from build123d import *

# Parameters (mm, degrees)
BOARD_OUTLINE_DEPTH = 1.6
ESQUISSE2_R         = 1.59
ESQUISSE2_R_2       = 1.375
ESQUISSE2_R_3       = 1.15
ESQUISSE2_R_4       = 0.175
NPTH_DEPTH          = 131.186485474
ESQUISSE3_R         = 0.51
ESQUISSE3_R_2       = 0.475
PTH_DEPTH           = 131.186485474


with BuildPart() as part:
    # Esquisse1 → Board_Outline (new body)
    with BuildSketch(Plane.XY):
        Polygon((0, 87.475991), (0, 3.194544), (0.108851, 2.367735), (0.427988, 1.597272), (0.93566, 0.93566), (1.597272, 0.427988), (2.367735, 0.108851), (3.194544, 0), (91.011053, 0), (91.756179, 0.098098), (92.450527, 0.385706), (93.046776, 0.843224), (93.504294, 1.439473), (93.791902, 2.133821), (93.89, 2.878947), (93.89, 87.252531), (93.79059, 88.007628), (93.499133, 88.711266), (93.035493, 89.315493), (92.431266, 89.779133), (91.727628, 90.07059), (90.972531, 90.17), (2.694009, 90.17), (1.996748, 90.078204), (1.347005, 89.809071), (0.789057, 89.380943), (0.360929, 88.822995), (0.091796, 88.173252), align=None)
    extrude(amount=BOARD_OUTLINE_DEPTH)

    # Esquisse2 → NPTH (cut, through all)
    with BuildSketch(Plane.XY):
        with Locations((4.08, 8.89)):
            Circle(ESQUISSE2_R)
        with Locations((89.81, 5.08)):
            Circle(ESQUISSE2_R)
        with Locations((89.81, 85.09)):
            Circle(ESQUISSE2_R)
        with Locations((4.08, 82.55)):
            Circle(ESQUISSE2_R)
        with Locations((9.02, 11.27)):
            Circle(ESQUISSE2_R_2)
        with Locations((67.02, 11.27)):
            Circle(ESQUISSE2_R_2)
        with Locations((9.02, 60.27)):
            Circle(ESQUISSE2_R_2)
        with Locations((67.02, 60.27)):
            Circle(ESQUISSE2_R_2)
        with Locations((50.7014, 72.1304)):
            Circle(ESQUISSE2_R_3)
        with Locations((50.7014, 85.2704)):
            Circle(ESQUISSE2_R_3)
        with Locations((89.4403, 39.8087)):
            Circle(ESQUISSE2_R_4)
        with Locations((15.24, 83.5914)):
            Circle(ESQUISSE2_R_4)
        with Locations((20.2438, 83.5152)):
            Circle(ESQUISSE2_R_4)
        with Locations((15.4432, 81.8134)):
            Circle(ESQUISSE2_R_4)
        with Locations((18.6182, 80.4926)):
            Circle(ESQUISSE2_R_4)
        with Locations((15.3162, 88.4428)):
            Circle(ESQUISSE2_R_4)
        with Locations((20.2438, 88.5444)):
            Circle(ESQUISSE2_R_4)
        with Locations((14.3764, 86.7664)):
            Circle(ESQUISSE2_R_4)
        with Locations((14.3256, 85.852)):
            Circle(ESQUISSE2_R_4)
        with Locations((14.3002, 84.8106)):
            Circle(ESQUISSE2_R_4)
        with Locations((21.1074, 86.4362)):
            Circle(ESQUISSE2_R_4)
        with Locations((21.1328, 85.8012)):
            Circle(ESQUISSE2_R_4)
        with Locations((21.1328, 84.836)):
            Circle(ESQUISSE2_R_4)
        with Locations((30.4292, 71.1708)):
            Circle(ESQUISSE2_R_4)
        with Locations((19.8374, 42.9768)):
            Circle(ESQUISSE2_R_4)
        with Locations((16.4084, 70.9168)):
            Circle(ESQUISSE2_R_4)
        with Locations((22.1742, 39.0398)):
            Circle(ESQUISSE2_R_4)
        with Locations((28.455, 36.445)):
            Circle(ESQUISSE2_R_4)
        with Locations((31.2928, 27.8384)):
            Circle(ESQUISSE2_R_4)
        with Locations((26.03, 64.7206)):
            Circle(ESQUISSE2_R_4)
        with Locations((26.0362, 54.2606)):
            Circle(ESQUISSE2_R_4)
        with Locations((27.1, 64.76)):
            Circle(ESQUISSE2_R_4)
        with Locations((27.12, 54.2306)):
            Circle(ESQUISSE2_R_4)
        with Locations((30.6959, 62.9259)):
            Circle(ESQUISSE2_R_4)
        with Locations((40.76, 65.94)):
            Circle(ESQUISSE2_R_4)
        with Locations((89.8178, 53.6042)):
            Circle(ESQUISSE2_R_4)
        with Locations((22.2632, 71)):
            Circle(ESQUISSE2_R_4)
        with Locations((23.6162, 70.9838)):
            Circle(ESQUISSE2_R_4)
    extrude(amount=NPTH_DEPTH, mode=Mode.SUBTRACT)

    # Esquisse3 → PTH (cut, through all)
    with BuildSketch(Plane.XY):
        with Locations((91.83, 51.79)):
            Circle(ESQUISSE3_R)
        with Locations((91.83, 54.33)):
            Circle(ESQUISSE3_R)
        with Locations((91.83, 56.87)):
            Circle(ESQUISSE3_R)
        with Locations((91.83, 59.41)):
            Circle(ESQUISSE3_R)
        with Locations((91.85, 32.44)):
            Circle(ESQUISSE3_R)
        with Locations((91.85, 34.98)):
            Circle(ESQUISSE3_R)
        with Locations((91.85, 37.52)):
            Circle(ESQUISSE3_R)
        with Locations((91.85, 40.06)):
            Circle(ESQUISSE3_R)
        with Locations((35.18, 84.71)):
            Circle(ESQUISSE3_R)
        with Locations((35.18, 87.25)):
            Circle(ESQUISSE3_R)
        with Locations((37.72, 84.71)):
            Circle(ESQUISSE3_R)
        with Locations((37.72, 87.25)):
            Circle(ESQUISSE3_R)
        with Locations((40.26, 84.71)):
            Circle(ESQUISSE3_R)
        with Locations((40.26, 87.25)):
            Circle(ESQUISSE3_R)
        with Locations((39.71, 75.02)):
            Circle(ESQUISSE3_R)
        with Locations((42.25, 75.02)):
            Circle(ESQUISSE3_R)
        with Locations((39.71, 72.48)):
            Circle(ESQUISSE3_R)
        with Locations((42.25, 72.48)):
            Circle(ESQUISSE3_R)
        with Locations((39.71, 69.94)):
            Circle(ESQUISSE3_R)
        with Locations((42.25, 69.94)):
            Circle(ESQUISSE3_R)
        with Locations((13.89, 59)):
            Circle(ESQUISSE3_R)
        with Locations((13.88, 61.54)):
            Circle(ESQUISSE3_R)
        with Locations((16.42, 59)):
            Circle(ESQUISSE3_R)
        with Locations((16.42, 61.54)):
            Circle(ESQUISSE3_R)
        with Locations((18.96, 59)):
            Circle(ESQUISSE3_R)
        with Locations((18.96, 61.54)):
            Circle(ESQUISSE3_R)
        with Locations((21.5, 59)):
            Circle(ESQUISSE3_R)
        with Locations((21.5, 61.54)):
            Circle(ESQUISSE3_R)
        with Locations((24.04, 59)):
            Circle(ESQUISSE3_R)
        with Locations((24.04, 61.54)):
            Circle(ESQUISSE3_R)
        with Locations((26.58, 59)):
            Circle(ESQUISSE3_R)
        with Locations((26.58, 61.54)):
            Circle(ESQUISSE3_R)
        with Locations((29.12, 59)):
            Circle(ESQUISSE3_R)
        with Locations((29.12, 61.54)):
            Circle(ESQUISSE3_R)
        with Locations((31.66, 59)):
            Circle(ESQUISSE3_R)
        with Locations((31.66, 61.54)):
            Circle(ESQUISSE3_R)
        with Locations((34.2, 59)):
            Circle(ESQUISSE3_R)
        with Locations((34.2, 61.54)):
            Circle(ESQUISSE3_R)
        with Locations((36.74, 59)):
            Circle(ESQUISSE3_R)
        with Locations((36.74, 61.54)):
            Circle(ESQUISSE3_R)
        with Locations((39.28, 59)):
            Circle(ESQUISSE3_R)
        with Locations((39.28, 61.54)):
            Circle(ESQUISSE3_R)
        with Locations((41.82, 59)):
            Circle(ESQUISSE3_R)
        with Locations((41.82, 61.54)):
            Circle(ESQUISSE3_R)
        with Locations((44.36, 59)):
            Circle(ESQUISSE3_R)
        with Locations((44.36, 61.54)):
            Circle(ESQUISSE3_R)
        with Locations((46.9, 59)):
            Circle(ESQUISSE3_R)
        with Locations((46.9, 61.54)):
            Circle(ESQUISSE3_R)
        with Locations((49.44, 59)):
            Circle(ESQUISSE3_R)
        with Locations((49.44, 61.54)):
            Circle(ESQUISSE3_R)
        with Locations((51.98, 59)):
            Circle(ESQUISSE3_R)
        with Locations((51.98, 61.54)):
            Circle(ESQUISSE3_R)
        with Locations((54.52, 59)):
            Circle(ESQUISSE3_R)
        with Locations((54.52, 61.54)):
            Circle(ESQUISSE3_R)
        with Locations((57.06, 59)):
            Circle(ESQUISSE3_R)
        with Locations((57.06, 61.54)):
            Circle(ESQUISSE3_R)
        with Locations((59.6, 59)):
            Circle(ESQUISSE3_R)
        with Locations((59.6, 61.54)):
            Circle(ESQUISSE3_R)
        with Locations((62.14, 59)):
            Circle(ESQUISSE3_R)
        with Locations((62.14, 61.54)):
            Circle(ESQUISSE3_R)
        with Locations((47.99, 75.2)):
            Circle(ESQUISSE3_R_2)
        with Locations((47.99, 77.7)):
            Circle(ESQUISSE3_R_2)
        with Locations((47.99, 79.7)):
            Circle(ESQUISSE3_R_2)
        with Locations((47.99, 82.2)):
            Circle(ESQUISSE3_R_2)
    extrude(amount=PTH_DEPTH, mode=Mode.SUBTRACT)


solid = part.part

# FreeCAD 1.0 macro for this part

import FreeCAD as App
import Part
import Sketcher

V = App.Vector

doc = App.newDocument("Part")
body = doc.addObject("PartDesign::Body", "Body")

sketch1 = body.newObject("Sketcher::SketchObject", "Sketch")
sketch1.AttachmentSupport = (doc.getObject("XY_Plane"), [""])
sketch1.MapMode = "FlatFace"
sketch1.addGeometry(Part.LineSegment(V(0, 87.475991, 0), V(0, 3.194544, 0)), False)
sketch1.addGeometry(Part.LineSegment(V(0, 3.194544, 0), V(0.108851, 2.367735, 0)), False)
sketch1.addGeometry(Part.LineSegment(V(0.108851, 2.367735, 0), V(0.427988, 1.597272, 0)), False)
sketch1.addGeometry(Part.LineSegment(V(0.427988, 1.597272, 0), V(0.93566, 0.93566, 0)), False)
sketch1.addGeometry(Part.LineSegment(V(0.93566, 0.93566, 0), V(1.597272, 0.427988, 0)), False)
sketch1.addGeometry(Part.LineSegment(V(1.597272, 0.427988, 0), V(2.367735, 0.108851, 0)), False)
sketch1.addGeometry(Part.LineSegment(V(2.367735, 0.108851, 0), V(3.194544, 0, 0)), False)
sketch1.addGeometry(Part.LineSegment(V(3.194544, 0, 0), V(91.011053, 0, 0)), False)
sketch1.addGeometry(Part.LineSegment(V(91.011053, 0, 0), V(91.756179, 0.098098, 0)), False)
sketch1.addGeometry(Part.LineSegment(V(91.756179, 0.098098, 0), V(92.450527, 0.385706, 0)), False)
sketch1.addGeometry(Part.LineSegment(V(92.450527, 0.385706, 0), V(93.046776, 0.843224, 0)), False)
sketch1.addGeometry(Part.LineSegment(V(93.046776, 0.843224, 0), V(93.504294, 1.439473, 0)), False)
sketch1.addGeometry(Part.LineSegment(V(93.504294, 1.439473, 0), V(93.791902, 2.133821, 0)), False)
sketch1.addGeometry(Part.LineSegment(V(93.791902, 2.133821, 0), V(93.89, 2.878947, 0)), False)
sketch1.addGeometry(Part.LineSegment(V(93.89, 2.878947, 0), V(93.89, 87.252531, 0)), False)
sketch1.addGeometry(Part.LineSegment(V(93.89, 87.252531, 0), V(93.79059, 88.007628, 0)), False)
sketch1.addGeometry(Part.LineSegment(V(93.79059, 88.007628, 0), V(93.499133, 88.711266, 0)), False)
sketch1.addGeometry(Part.LineSegment(V(93.499133, 88.711266, 0), V(93.035493, 89.315493, 0)), False)
sketch1.addGeometry(Part.LineSegment(V(93.035493, 89.315493, 0), V(92.431266, 89.779133, 0)), False)
sketch1.addGeometry(Part.LineSegment(V(92.431266, 89.779133, 0), V(91.727628, 90.07059, 0)), False)
sketch1.addGeometry(Part.LineSegment(V(91.727628, 90.07059, 0), V(90.972531, 90.17, 0)), False)
sketch1.addGeometry(Part.LineSegment(V(90.972531, 90.17, 0), V(2.694009, 90.17, 0)), False)
sketch1.addGeometry(Part.LineSegment(V(2.694009, 90.17, 0), V(1.996748, 90.078204, 0)), False)
sketch1.addGeometry(Part.LineSegment(V(1.996748, 90.078204, 0), V(1.347005, 89.809071, 0)), False)
sketch1.addGeometry(Part.LineSegment(V(1.347005, 89.809071, 0), V(0.789057, 89.380943, 0)), False)
sketch1.addGeometry(Part.LineSegment(V(0.789057, 89.380943, 0), V(0.360929, 88.822995, 0)), False)
sketch1.addGeometry(Part.LineSegment(V(0.360929, 88.822995, 0), V(0.091796, 88.173252, 0)), False)
sketch1.addGeometry(Part.LineSegment(V(0.091796, 88.173252, 0), V(0, 87.475991, 0)), False)
sketch1.addConstraint(Sketcher.Constraint("Coincident", 0, 2, 1, 1))
sketch1.addConstraint(Sketcher.Constraint("Coincident", 1, 2, 2, 1))
sketch1.addConstraint(Sketcher.Constraint("Coincident", 2, 2, 3, 1))
sketch1.addConstraint(Sketcher.Constraint("Coincident", 3, 2, 4, 1))
sketch1.addConstraint(Sketcher.Constraint("Coincident", 4, 2, 5, 1))
sketch1.addConstraint(Sketcher.Constraint("Coincident", 5, 2, 6, 1))
sketch1.addConstraint(Sketcher.Constraint("Coincident", 6, 2, 7, 1))
sketch1.addConstraint(Sketcher.Constraint("Coincident", 7, 2, 8, 1))
sketch1.addConstraint(Sketcher.Constraint("Coincident", 8, 2, 9, 1))
sketch1.addConstraint(Sketcher.Constraint("Coincident", 9, 2, 10, 1))
sketch1.addConstraint(Sketcher.Constraint("Coincident", 10, 2, 11, 1))
sketch1.addConstraint(Sketcher.Constraint("Coincident", 11, 2, 12, 1))
sketch1.addConstraint(Sketcher.Constraint("Coincident", 12, 2, 13, 1))
sketch1.addConstraint(Sketcher.Constraint("Coincident", 13, 2, 14, 1))
sketch1.addConstraint(Sketcher.Constraint("Coincident", 14, 2, 15, 1))
sketch1.addConstraint(Sketcher.Constraint("Coincident", 15, 2, 16, 1))
sketch1.addConstraint(Sketcher.Constraint("Coincident", 16, 2, 17, 1))
sketch1.addConstraint(Sketcher.Constraint("Coincident", 17, 2, 18, 1))
sketch1.addConstraint(Sketcher.Constraint("Coincident", 18, 2, 19, 1))
sketch1.addConstraint(Sketcher.Constraint("Coincident", 19, 2, 20, 1))
sketch1.addConstraint(Sketcher.Constraint("Coincident", 20, 2, 21, 1))
sketch1.addConstraint(Sketcher.Constraint("Coincident", 21, 2, 22, 1))
sketch1.addConstraint(Sketcher.Constraint("Coincident", 22, 2, 23, 1))
sketch1.addConstraint(Sketcher.Constraint("Coincident", 23, 2, 24, 1))
sketch1.addConstraint(Sketcher.Constraint("Coincident", 24, 2, 25, 1))
sketch1.addConstraint(Sketcher.Constraint("Coincident", 25, 2, 26, 1))
sketch1.addConstraint(Sketcher.Constraint("Coincident", 26, 2, 27, 1))
sketch1.addConstraint(Sketcher.Constraint("Coincident", 27, 2, 0, 1))
sketch1.addConstraint(Sketcher.Constraint("Vertical", 0))
sketch1.addConstraint(Sketcher.Constraint("Horizontal", 7))
sketch1.addConstraint(Sketcher.Constraint("Vertical", 14))
sketch1.addConstraint(Sketcher.Constraint("Horizontal", 21))
sketch1.addConstraint(Sketcher.Constraint("PointOnObject", 0, 2, -2))
sketch1.addConstraint(Sketcher.Constraint("PointOnObject", 6, 2, -1))
sketch1.addConstraint(Sketcher.Constraint("DistanceX", -1, 1, 13, 2, 93.89))
sketch1.addConstraint(Sketcher.Constraint("DistanceY", -1, 1, 20, 2, 90.17))
sketch1.addConstraint(Sketcher.Constraint("DistanceX", 7, 1, 7, 2, 87.816509))
sketch1.addConstraint(Sketcher.Constraint("DistanceX", -1, 1, 12, 2, 93.791902))
sketch1.addConstraint(Sketcher.Constraint("DistanceY", 14, 2, 18, 2, 2.526602))
sketch1.addConstraint(Sketcher.Constraint("DistanceX", 20, 2, 16, 2, 2.526602))
sketch1.addConstraint(Sketcher.Constraint("DistanceY", 2, 2, 23, 2, 88.211799))
sketch1.addConstraint(Sketcher.Constraint("DistanceY", 0, 2, 24, 2, 86.186399))
sketch1.addConstraint(Sketcher.Constraint("Distance", 17, 0.761612))
sketch1.addConstraint(Sketcher.Constraint("Distance", 18, 0.761612))
sketch1.addConstraint(Sketcher.Constraint("DistanceX", 21, 2, 21, 1, 88.278522))
sketch1.addConstraint(Sketcher.Constraint("DistanceY", 0, 2, 0, 1, 84.281447))
sketch1.addConstraint(Sketcher.Constraint("DistanceY", 14, 1, 14, 2, 84.373584))
sketch1.addConstraint(Sketcher.Constraint("DistanceX", -1, 1, 1, 2, 0.108851))
sketch1.addConstraint(Sketcher.Constraint("DistanceX", -1, 1, 3, 2, 0.93566))
sketch1.addConstraint(Sketcher.Constraint("DistanceY", -1, 1, 3, 2, 0.93566))
sketch1.addConstraint(Sketcher.Constraint("DistanceY", -1, 1, 5, 2, 0.108851))
sketch1.addConstraint(Sketcher.Constraint("DistanceX", -1, 1, 8, 2, 91.756179))
sketch1.addConstraint(Sketcher.Constraint("DistanceY", -1, 1, 12, 2, 2.133821))
sketch1.addConstraint(Sketcher.Constraint("DistanceY", -1, 1, 14, 2, 87.252531))
sketch1.addConstraint(Sketcher.Constraint("DistanceX", -1, 1, 15, 2, 93.79059))
sketch1.addConstraint(Sketcher.Constraint("DistanceY", -1, 1, 19, 2, 90.07059))
sketch1.addConstraint(Sketcher.Constraint("DistanceX", -1, 1, 20, 2, 90.972531))
sketch1.addConstraint(Sketcher.Constraint("DistanceY", -1, 1, 23, 2, 89.809071))
sketch1.addConstraint(Sketcher.Constraint("DistanceX", -1, 1, 25, 2, 0.360929))
sketch1.addConstraint(Sketcher.Constraint("DistanceY", -1, 1, 27, 2, 87.475991))
sketch1.addConstraint(Sketcher.Constraint("DistanceY", 1, 2, 0, 2, 0.826809))
sketch1.addConstraint(Sketcher.Constraint("DistanceX", 3, 2, 4, 2, 0.661612))
sketch1.addConstraint(Sketcher.Constraint("DistanceX", 5, 2, 6, 2, 0.826809))
sketch1.addConstraint(Sketcher.Constraint("DistanceX", 4, 2, 7, 2, 89.413781))
sketch1.addConstraint(Sketcher.Constraint("DistanceY", 8, 2, 4, 2, 0.32989))
sketch1.addConstraint(Sketcher.Constraint("DistanceX", 5, 2, 9, 2, 90.082792))
sketch1.addConstraint(Sketcher.Constraint("DistanceY", 9, 2, 4, 2, 0.042282))
sketch1.addConstraint(Sketcher.Constraint("DistanceX", 9, 2, 10, 2, 0.596249))
sketch1.addConstraint(Sketcher.Constraint("DistanceX", 10, 2, 11, 2, 0.457518))
sketch1.addConstraint(Sketcher.Constraint("DistanceY", 10, 2, 11, 2, 0.596249))
sketch1.addConstraint(Sketcher.Constraint("DistanceY", 11, 2, 12, 2, 0.694348))
sketch1.addConstraint(Sketcher.Constraint("DistanceY", 9, 2, 13, 2, 2.493241))
sketch1.addConstraint(Sketcher.Constraint("DistanceY", 13, 2, 15, 2, 85.128681))
sketch1.addConstraint(Sketcher.Constraint("DistanceY", 13, 2, 16, 2, 85.832319))
sketch1.addConstraint(Sketcher.Constraint("DistanceX", 17, 2, 16, 2, 0.46364))
sketch1.addConstraint(Sketcher.Constraint("DistanceX", 19, 2, 15, 2, 2.062962))
sketch1.addConstraint(Sketcher.Constraint("DistanceX", 2, 2, 21, 2, 2.266021))
sketch1.addConstraint(Sketcher.Constraint("DistanceX", 22, 2, 21, 2, 0.697261))
sketch1.addConstraint(Sketcher.Constraint("DistanceY", 0, 2, 22, 2, 86.88366))
sketch1.addConstraint(Sketcher.Constraint("DistanceX", 24, 2, 23, 2, 0.557948))
sketch1.addConstraint(Sketcher.Constraint("DistanceX", 24, 2, 22, 2, 1.207691))
sketch1.addConstraint(Sketcher.Constraint("DistanceY", 25, 2, 22, 2, 1.255209))
sketch1.addConstraint(Sketcher.Constraint("DistanceX", 26, 2, 24, 2, 0.697261))
sketch1.addConstraint(Sketcher.Constraint("DistanceY", 26, 2, 24, 2, 1.207691))
pad1 = body.newObject("PartDesign::Pad", "Pad")
pad1.Profile = sketch1
pad1.Length = 1.6

sketch2 = body.newObject("Sketcher::SketchObject", "Sketch001")
sketch2.AttachmentSupport = (doc.getObject("XY_Plane"), [""])
sketch2.MapMode = "FlatFace"
sketch2.addGeometry(Part.Circle(V(4.08, 8.89, 0), V(0, 0, 1), 1.59), False)
sketch2.addGeometry(Part.Circle(V(89.81, 5.08, 0), V(0, 0, 1), 1.59), False)
sketch2.addGeometry(Part.Circle(V(89.81, 85.09, 0), V(0, 0, 1), 1.59), False)
sketch2.addGeometry(Part.Circle(V(4.08, 82.55, 0), V(0, 0, 1), 1.59), False)
sketch2.addGeometry(Part.Circle(V(9.02, 11.27, 0), V(0, 0, 1), 1.38), False)
sketch2.addGeometry(Part.Circle(V(67.02, 11.27, 0), V(0, 0, 1), 1.38), False)
sketch2.addGeometry(Part.Circle(V(9.02, 60.27, 0), V(0, 0, 1), 1.38), False)
sketch2.addGeometry(Part.Circle(V(67.02, 60.27, 0), V(0, 0, 1), 1.38), False)
sketch2.addGeometry(Part.Circle(V(50.7, 72.13, 0), V(0, 0, 1), 1.15), False)
sketch2.addGeometry(Part.Circle(V(50.7, 85.27, 0), V(0, 0, 1), 1.15), False)
sketch2.addGeometry(Part.Circle(V(89.44, 39.81, 0), V(0, 0, 1), 0.17), False)
sketch2.addGeometry(Part.Circle(V(15.24, 83.59, 0), V(0, 0, 1), 0.17), False)
sketch2.addGeometry(Part.Circle(V(20.24, 83.52, 0), V(0, 0, 1), 0.17), False)
sketch2.addGeometry(Part.Circle(V(15.44, 81.81, 0), V(0, 0, 1), 0.17), False)
sketch2.addGeometry(Part.Circle(V(18.62, 80.49, 0), V(0, 0, 1), 0.17), False)
sketch2.addGeometry(Part.Circle(V(15.32, 88.44, 0), V(0, 0, 1), 0.17), False)
sketch2.addGeometry(Part.Circle(V(20.24, 88.54, 0), V(0, 0, 1), 0.17), False)
sketch2.addGeometry(Part.Circle(V(14.38, 86.77, 0), V(0, 0, 1), 0.17), False)
sketch2.addGeometry(Part.Circle(V(14.33, 85.85, 0), V(0, 0, 1), 0.17), False)
sketch2.addGeometry(Part.Circle(V(14.3, 84.81, 0), V(0, 0, 1), 0.17), False)
sketch2.addGeometry(Part.Circle(V(21.11, 86.44, 0), V(0, 0, 1), 0.17), False)
sketch2.addGeometry(Part.Circle(V(21.13, 85.8, 0), V(0, 0, 1), 0.17), False)
sketch2.addGeometry(Part.Circle(V(21.13, 84.84, 0), V(0, 0, 1), 0.17), False)
sketch2.addGeometry(Part.Circle(V(30.43, 71.17, 0), V(0, 0, 1), 0.17), False)
sketch2.addGeometry(Part.Circle(V(19.84, 42.98, 0), V(0, 0, 1), 0.17), False)
sketch2.addGeometry(Part.Circle(V(16.41, 70.92, 0), V(0, 0, 1), 0.17), False)
sketch2.addGeometry(Part.Circle(V(22.17, 39.04, 0), V(0, 0, 1), 0.17), False)
sketch2.addGeometry(Part.Circle(V(28.45, 36.45, 0), V(0, 0, 1), 0.17), False)
sketch2.addGeometry(Part.Circle(V(31.29, 27.84, 0), V(0, 0, 1), 0.17), False)
sketch2.addGeometry(Part.Circle(V(26.03, 64.72, 0), V(0, 0, 1), 0.17), False)
sketch2.addGeometry(Part.Circle(V(26.04, 54.26, 0), V(0, 0, 1), 0.17), False)
sketch2.addGeometry(Part.Circle(V(27.1, 64.76, 0), V(0, 0, 1), 0.17), False)
sketch2.addGeometry(Part.Circle(V(27.12, 54.23, 0), V(0, 0, 1), 0.17), False)
sketch2.addGeometry(Part.Circle(V(30.7, 62.93, 0), V(0, 0, 1), 0.17), False)
sketch2.addGeometry(Part.Circle(V(40.76, 65.94, 0), V(0, 0, 1), 0.17), False)
sketch2.addGeometry(Part.Circle(V(89.82, 53.6, 0), V(0, 0, 1), 0.17), False)
sketch2.addGeometry(Part.Circle(V(22.26, 71, 0), V(0, 0, 1), 0.17), False)
sketch2.addGeometry(Part.Circle(V(23.62, 70.98, 0), V(0, 0, 1), 0.17), False)
sketch2.addConstraint(Sketcher.Constraint("Equal", 0, 1))
sketch2.addConstraint(Sketcher.Constraint("Equal", 1, 2))
sketch2.addConstraint(Sketcher.Constraint("Equal", 2, 3))
sketch2.addConstraint(Sketcher.Constraint("Equal", 4, 5))
sketch2.addConstraint(Sketcher.Constraint("Equal", 5, 6))
sketch2.addConstraint(Sketcher.Constraint("Equal", 6, 7))
sketch2.addConstraint(Sketcher.Constraint("Equal", 8, 9))
sketch2.addConstraint(Sketcher.Constraint("Equal", 10, 11))
sketch2.addConstraint(Sketcher.Constraint("Equal", 11, 12))
sketch2.addConstraint(Sketcher.Constraint("Equal", 12, 13))
sketch2.addConstraint(Sketcher.Constraint("Equal", 13, 14))
sketch2.addConstraint(Sketcher.Constraint("Equal", 14, 15))
sketch2.addConstraint(Sketcher.Constraint("Equal", 15, 16))
sketch2.addConstraint(Sketcher.Constraint("Equal", 16, 17))
sketch2.addConstraint(Sketcher.Constraint("Equal", 17, 18))
sketch2.addConstraint(Sketcher.Constraint("Equal", 18, 19))
sketch2.addConstraint(Sketcher.Constraint("Equal", 19, 20))
sketch2.addConstraint(Sketcher.Constraint("Equal", 20, 21))
sketch2.addConstraint(Sketcher.Constraint("Equal", 21, 22))
sketch2.addConstraint(Sketcher.Constraint("Equal", 22, 23))
sketch2.addConstraint(Sketcher.Constraint("Equal", 23, 24))
sketch2.addConstraint(Sketcher.Constraint("Equal", 24, 25))
sketch2.addConstraint(Sketcher.Constraint("Equal", 25, 26))
sketch2.addConstraint(Sketcher.Constraint("Equal", 26, 27))
sketch2.addConstraint(Sketcher.Constraint("Equal", 27, 28))
sketch2.addConstraint(Sketcher.Constraint("Equal", 28, 29))
sketch2.addConstraint(Sketcher.Constraint("Equal", 29, 30))
sketch2.addConstraint(Sketcher.Constraint("Equal", 30, 31))
sketch2.addConstraint(Sketcher.Constraint("Equal", 31, 32))
sketch2.addConstraint(Sketcher.Constraint("Equal", 32, 33))
sketch2.addConstraint(Sketcher.Constraint("Equal", 33, 34))
sketch2.addConstraint(Sketcher.Constraint("Equal", 34, 35))
sketch2.addConstraint(Sketcher.Constraint("Equal", 35, 36))
sketch2.addConstraint(Sketcher.Constraint("Equal", 36, 37))
sketch2.addConstraint(Sketcher.Constraint("Horizontal", 4, 3, 5, 3))
sketch2.addConstraint(Sketcher.Constraint("Horizontal", 6, 3, 7, 3))
sketch2.addConstraint(Sketcher.Constraint("Vertical", 1, 3, 2, 3))
sketch2.addConstraint(Sketcher.Constraint("Vertical", 0, 3, 3, 3))
sketch2.addConstraint(Sketcher.Constraint("Vertical", 4, 3, 6, 3))
sketch2.addConstraint(Sketcher.Constraint("Vertical", 5, 3, 7, 3))
sketch2.addConstraint(Sketcher.Constraint("Vertical", 8, 3, 9, 3))
sketch2.addConstraint(Sketcher.Constraint("Vertical", 12, 3, 16, 3))
sketch2.addConstraint(Sketcher.Constraint("Vertical", 21, 3, 22, 3))
sketch2.addConstraint(Sketcher.Constraint("Diameter", 8, 2.3))
sketch2.addConstraint(Sketcher.Constraint("Diameter", 0, 3.18))
sketch2.addConstraint(Sketcher.Constraint("Diameter", 4, 2.75))
sketch2.addConstraint(Sketcher.Constraint("Diameter", 10, 0.35))
sketch2.addConstraint(Sketcher.Constraint("DistanceY", -1, 1, 36, 3, 71.0))
sketch2.addConstraint(Sketcher.Constraint("DistanceX", 4, 3, 5, 3, 58.0))
sketch2.addConstraint(Sketcher.Constraint("DistanceY", 4, 3, 6, 3, 49.0))
sketch2.addConstraint(Sketcher.Constraint("DistanceX", -1, 1, 31, 3, 27.1))
sketch2.addConstraint(Sketcher.Constraint("DistanceY", 0, 3, 2, 3, 76.2))
sketch2.addConstraint(Sketcher.Constraint("DistanceX", -1, 1, 0, 3, 4.08))
sketch2.addConstraint(Sketcher.Constraint("DistanceY", -1, 1, 0, 3, 8.89))
sketch2.addConstraint(Sketcher.Constraint("DistanceX", -1, 1, 1, 3, 89.81))
sketch2.addConstraint(Sketcher.Constraint("DistanceY", -1, 1, 1, 3, 5.08))
sketch2.addConstraint(Sketcher.Constraint("DistanceY", -1, 1, 3, 3, 82.55))
sketch2.addConstraint(Sketcher.Constraint("DistanceX", -1, 1, 4, 3, 9.02))
sketch2.addConstraint(Sketcher.Constraint("DistanceY", -1, 1, 4, 3, 11.27))
sketch2.addConstraint(Sketcher.Constraint("DistanceX", -1, 1, 11, 3, 15.24))
sketch2.addConstraint(Sketcher.Constraint("DistanceX", -1, 1, 29, 3, 26.03))
sketch2.addConstraint(Sketcher.Constraint("DistanceY", -1, 1, 31, 3, 64.76))
sketch2.addConstraint(Sketcher.Constraint("DistanceX", -1, 1, 32, 3, 27.12))
sketch2.addConstraint(Sketcher.Constraint("DistanceX", -1, 1, 34, 3, 40.76))
sketch2.addConstraint(Sketcher.Constraint("DistanceY", -1, 1, 34, 3, 65.94))
sketch2.addConstraint(Sketcher.Constraint("DistanceY", 8, 3, 9, 3, 13.14))
sketch2.addConstraint(Sketcher.Constraint("DistanceY", 30, 3, 29, 3, 10.46))
sketch2.addConstraint(Sketcher.Constraint("DistanceY", 32, 3, 30, 3, 0.03))
sketch2.addConstraint(Sketcher.Constraint("DistanceY", -1, 1, 18, 3, 85.852))
sketch2.addConstraint(Sketcher.Constraint("DistanceY", -1, 1, 22, 3, 84.836))
sketch2.addConstraint(Sketcher.Constraint("DistanceX", -1, 1, 27, 3, 28.455))
sketch2.addConstraint(Sketcher.Constraint("DistanceY", -1, 1, 27, 3, 36.445))
sketch2.addConstraint(Sketcher.Constraint("DistanceY", 11, 3, 9, 3, 1.679))
sketch2.addConstraint(Sketcher.Constraint("DistanceY", 13, 3, 11, 3, 1.778))
sketch2.addConstraint(Sketcher.Constraint("DistanceX", 13, 3, 14, 3, 3.175))
sketch2.addConstraint(Sketcher.Constraint("DistanceX", 15, 3, 13, 3, 0.127))
sketch2.addConstraint(Sketcher.Constraint("DistanceY", 11, 3, 16, 3, 4.953))
sketch2.addConstraint(Sketcher.Constraint("DistanceY", 11, 3, 17, 3, 3.175))
sketch2.addConstraint(Sketcher.Constraint("DistanceX", 19, 3, 13, 3, 1.143))
sketch2.addConstraint(Sketcher.Constraint("DistanceY", 12, 3, 20, 3, 2.921))
sketch2.addConstraint(Sketcher.Constraint("DistanceY", 21, 3, 20, 3, 0.635))
sketch2.addConstraint(Sketcher.Constraint("DistanceX", 12, 3, 21, 3, 0.889))
sketch2.addConstraint(Sketcher.Constraint("DistanceX", 14, 3, 23, 3, 11.811))
sketch2.addConstraint(Sketcher.Constraint("DistanceY", 24, 3, 23, 3, 28.194))
sketch2.addConstraint(Sketcher.Constraint("DistanceY", 26, 3, 24, 3, 3.937))
sketch2.addConstraint(Sketcher.Constraint("DistanceY", 26, 3, 25, 3, 31.877))
sketch2.addConstraint(Sketcher.Constraint("DistanceX", 26, 3, 23, 3, 8.255))
sketch2.addConstraint(Sketcher.Constraint("DistanceY", 29, 3, 14, 3, 15.772))
sketch2.addConstraint(Sketcher.Constraint("DistanceX", 26, 3, 30, 3, 3.862))
sketch2.addConstraint(Sketcher.Constraint("DistanceX", 36, 3, 23, 3, 8.166))
sketch2.addConstraint(Sketcher.Constraint("DistanceX", 36, 3, 37, 3, 1.353))
sketch2.addConstraint(Sketcher.Constraint("DistanceY", 37, 3, 23, 3, 0.187))
sketch2.addConstraint(Sketcher.Constraint("DistanceX", -1, 1, 8, 3, 50.7014))
sketch2.addConstraint(Sketcher.Constraint("DistanceY", -1, 1, 8, 3, 72.1304))
sketch2.addConstraint(Sketcher.Constraint("DistanceX", -1, 1, 10, 3, 89.4403))
sketch2.addConstraint(Sketcher.Constraint("DistanceY", -1, 1, 10, 3, 39.8087))
sketch2.addConstraint(Sketcher.Constraint("DistanceX", -1, 1, 12, 3, 20.2438))
sketch2.addConstraint(Sketcher.Constraint("DistanceY", -1, 1, 12, 3, 83.5152))
sketch2.addConstraint(Sketcher.Constraint("DistanceX", -1, 1, 13, 3, 15.4432))
sketch2.addConstraint(Sketcher.Constraint("DistanceY", -1, 1, 14, 3, 80.4926))
sketch2.addConstraint(Sketcher.Constraint("DistanceY", -1, 1, 15, 3, 88.4428))
sketch2.addConstraint(Sketcher.Constraint("DistanceX", -1, 1, 17, 3, 14.3764))
sketch2.addConstraint(Sketcher.Constraint("DistanceX", -1, 1, 18, 3, 14.3256))
sketch2.addConstraint(Sketcher.Constraint("DistanceY", -1, 1, 19, 3, 84.8106))
sketch2.addConstraint(Sketcher.Constraint("DistanceX", -1, 1, 20, 3, 21.1074))
sketch2.addConstraint(Sketcher.Constraint("DistanceY", -1, 1, 23, 3, 71.1708))
sketch2.addConstraint(Sketcher.Constraint("DistanceX", -1, 1, 24, 3, 19.8374))
sketch2.addConstraint(Sketcher.Constraint("DistanceX", -1, 1, 25, 3, 16.4084))
sketch2.addConstraint(Sketcher.Constraint("DistanceX", -1, 1, 28, 3, 31.2928))
sketch2.addConstraint(Sketcher.Constraint("DistanceY", -1, 1, 28, 3, 27.8384))
sketch2.addConstraint(Sketcher.Constraint("DistanceX", -1, 1, 33, 3, 30.6959))
sketch2.addConstraint(Sketcher.Constraint("DistanceY", -1, 1, 33, 3, 62.9259))
sketch2.addConstraint(Sketcher.Constraint("DistanceX", -1, 1, 35, 3, 89.8178))
sketch2.addConstraint(Sketcher.Constraint("DistanceY", -1, 1, 35, 3, 53.6042))
pocket1 = body.newObject("PartDesign::Pocket", "Pocket")
pocket1.Profile = sketch2
pocket1.Type = "ThroughAll"
pocket1.Reversed = True

sketch3 = body.newObject("Sketcher::SketchObject", "Sketch002")
sketch3.AttachmentSupport = (doc.getObject("XY_Plane"), [""])
sketch3.MapMode = "FlatFace"
sketch3.addGeometry(Part.Circle(V(91.83, 51.79, 0), V(0, 0, 1), 0.51), False)
sketch3.addGeometry(Part.Circle(V(91.83, 54.33, 0), V(0, 0, 1), 0.51), False)
sketch3.addGeometry(Part.Circle(V(91.83, 56.87, 0), V(0, 0, 1), 0.51), False)
sketch3.addGeometry(Part.Circle(V(91.83, 59.41, 0), V(0, 0, 1), 0.51), False)
sketch3.addGeometry(Part.Circle(V(91.85, 32.44, 0), V(0, 0, 1), 0.51), False)
sketch3.addGeometry(Part.Circle(V(91.85, 34.98, 0), V(0, 0, 1), 0.51), False)
sketch3.addGeometry(Part.Circle(V(91.85, 37.52, 0), V(0, 0, 1), 0.51), False)
sketch3.addGeometry(Part.Circle(V(91.85, 40.06, 0), V(0, 0, 1), 0.51), False)
sketch3.addGeometry(Part.Circle(V(35.18, 84.71, 0), V(0, 0, 1), 0.51), False)
sketch3.addGeometry(Part.Circle(V(35.18, 87.25, 0), V(0, 0, 1), 0.51), False)
sketch3.addGeometry(Part.Circle(V(37.72, 84.71, 0), V(0, 0, 1), 0.51), False)
sketch3.addGeometry(Part.Circle(V(37.72, 87.25, 0), V(0, 0, 1), 0.51), False)
sketch3.addGeometry(Part.Circle(V(40.26, 84.71, 0), V(0, 0, 1), 0.51), False)
sketch3.addGeometry(Part.Circle(V(40.26, 87.25, 0), V(0, 0, 1), 0.51), False)
sketch3.addGeometry(Part.Circle(V(39.71, 75.02, 0), V(0, 0, 1), 0.51), False)
sketch3.addGeometry(Part.Circle(V(42.25, 75.02, 0), V(0, 0, 1), 0.51), False)
sketch3.addGeometry(Part.Circle(V(39.71, 72.48, 0), V(0, 0, 1), 0.51), False)
sketch3.addGeometry(Part.Circle(V(42.25, 72.48, 0), V(0, 0, 1), 0.51), False)
sketch3.addGeometry(Part.Circle(V(39.71, 69.94, 0), V(0, 0, 1), 0.51), False)
sketch3.addGeometry(Part.Circle(V(42.25, 69.94, 0), V(0, 0, 1), 0.51), False)
sketch3.addGeometry(Part.Circle(V(13.89, 59, 0), V(0, 0, 1), 0.51), False)
sketch3.addGeometry(Part.Circle(V(13.88, 61.54, 0), V(0, 0, 1), 0.51), False)
sketch3.addGeometry(Part.Circle(V(16.42, 59, 0), V(0, 0, 1), 0.51), False)
sketch3.addGeometry(Part.Circle(V(16.42, 61.54, 0), V(0, 0, 1), 0.51), False)
sketch3.addGeometry(Part.Circle(V(18.96, 59, 0), V(0, 0, 1), 0.51), False)
sketch3.addGeometry(Part.Circle(V(18.96, 61.54, 0), V(0, 0, 1), 0.51), False)
sketch3.addGeometry(Part.Circle(V(21.5, 59, 0), V(0, 0, 1), 0.51), False)
sketch3.addGeometry(Part.Circle(V(21.5, 61.54, 0), V(0, 0, 1), 0.51), False)
sketch3.addGeometry(Part.Circle(V(24.04, 59, 0), V(0, 0, 1), 0.51), False)
sketch3.addGeometry(Part.Circle(V(24.04, 61.54, 0), V(0, 0, 1), 0.51), False)
sketch3.addGeometry(Part.Circle(V(26.58, 59, 0), V(0, 0, 1), 0.51), False)
sketch3.addGeometry(Part.Circle(V(26.58, 61.54, 0), V(0, 0, 1), 0.51), False)
sketch3.addGeometry(Part.Circle(V(29.12, 59, 0), V(0, 0, 1), 0.51), False)
sketch3.addGeometry(Part.Circle(V(29.12, 61.54, 0), V(0, 0, 1), 0.51), False)
sketch3.addGeometry(Part.Circle(V(31.66, 59, 0), V(0, 0, 1), 0.51), False)
sketch3.addGeometry(Part.Circle(V(31.66, 61.54, 0), V(0, 0, 1), 0.51), False)
sketch3.addGeometry(Part.Circle(V(34.2, 59, 0), V(0, 0, 1), 0.51), False)
sketch3.addGeometry(Part.Circle(V(34.2, 61.54, 0), V(0, 0, 1), 0.51), False)
sketch3.addGeometry(Part.Circle(V(36.74, 59, 0), V(0, 0, 1), 0.51), False)
sketch3.addGeometry(Part.Circle(V(36.74, 61.54, 0), V(0, 0, 1), 0.51), False)
sketch3.addGeometry(Part.Circle(V(39.28, 59, 0), V(0, 0, 1), 0.51), False)
sketch3.addGeometry(Part.Circle(V(39.28, 61.54, 0), V(0, 0, 1), 0.51), False)
sketch3.addGeometry(Part.Circle(V(41.82, 59, 0), V(0, 0, 1), 0.51), False)
sketch3.addGeometry(Part.Circle(V(41.82, 61.54, 0), V(0, 0, 1), 0.51), False)
sketch3.addGeometry(Part.Circle(V(44.36, 59, 0), V(0, 0, 1), 0.51), False)
sketch3.addGeometry(Part.Circle(V(44.36, 61.54, 0), V(0, 0, 1), 0.51), False)
sketch3.addGeometry(Part.Circle(V(46.9, 59, 0), V(0, 0, 1), 0.51), False)
sketch3.addGeometry(Part.Circle(V(46.9, 61.54, 0), V(0, 0, 1), 0.51), False)
sketch3.addGeometry(Part.Circle(V(49.44, 59, 0), V(0, 0, 1), 0.51), False)
sketch3.addGeometry(Part.Circle(V(49.44, 61.54, 0), V(0, 0, 1), 0.51), False)
sketch3.addGeometry(Part.Circle(V(51.98, 59, 0), V(0, 0, 1), 0.51), False)
sketch3.addGeometry(Part.Circle(V(51.98, 61.54, 0), V(0, 0, 1), 0.51), False)
sketch3.addGeometry(Part.Circle(V(54.52, 59, 0), V(0, 0, 1), 0.51), False)
sketch3.addGeometry(Part.Circle(V(54.52, 61.54, 0), V(0, 0, 1), 0.51), False)
sketch3.addGeometry(Part.Circle(V(57.06, 59, 0), V(0, 0, 1), 0.51), False)
sketch3.addGeometry(Part.Circle(V(57.06, 61.54, 0), V(0, 0, 1), 0.51), False)
sketch3.addGeometry(Part.Circle(V(59.6, 59, 0), V(0, 0, 1), 0.51), False)
sketch3.addGeometry(Part.Circle(V(59.6, 61.54, 0), V(0, 0, 1), 0.51), False)
sketch3.addGeometry(Part.Circle(V(62.14, 59, 0), V(0, 0, 1), 0.51), False)
sketch3.addGeometry(Part.Circle(V(62.14, 61.54, 0), V(0, 0, 1), 0.51), False)
sketch3.addGeometry(Part.Circle(V(47.99, 75.2, 0), V(0, 0, 1), 0.47), False)
sketch3.addGeometry(Part.Circle(V(47.99, 77.7, 0), V(0, 0, 1), 0.47), False)
sketch3.addGeometry(Part.Circle(V(47.99, 79.7, 0), V(0, 0, 1), 0.47), False)
sketch3.addGeometry(Part.Circle(V(47.99, 82.2, 0), V(0, 0, 1), 0.47), False)
sketch3.addConstraint(Sketcher.Constraint("Equal", 0, 1))
sketch3.addConstraint(Sketcher.Constraint("Equal", 1, 2))
sketch3.addConstraint(Sketcher.Constraint("Equal", 2, 3))
sketch3.addConstraint(Sketcher.Constraint("Equal", 3, 4))
sketch3.addConstraint(Sketcher.Constraint("Equal", 4, 5))
sketch3.addConstraint(Sketcher.Constraint("Equal", 5, 6))
sketch3.addConstraint(Sketcher.Constraint("Equal", 6, 7))
sketch3.addConstraint(Sketcher.Constraint("Equal", 7, 8))
sketch3.addConstraint(Sketcher.Constraint("Equal", 8, 9))
sketch3.addConstraint(Sketcher.Constraint("Equal", 9, 10))
sketch3.addConstraint(Sketcher.Constraint("Equal", 10, 11))
sketch3.addConstraint(Sketcher.Constraint("Equal", 11, 12))
sketch3.addConstraint(Sketcher.Constraint("Equal", 12, 13))
sketch3.addConstraint(Sketcher.Constraint("Equal", 13, 14))
sketch3.addConstraint(Sketcher.Constraint("Equal", 14, 15))
sketch3.addConstraint(Sketcher.Constraint("Equal", 15, 16))
sketch3.addConstraint(Sketcher.Constraint("Equal", 16, 17))
sketch3.addConstraint(Sketcher.Constraint("Equal", 17, 18))
sketch3.addConstraint(Sketcher.Constraint("Equal", 18, 19))
sketch3.addConstraint(Sketcher.Constraint("Equal", 19, 20))
sketch3.addConstraint(Sketcher.Constraint("Equal", 20, 21))
sketch3.addConstraint(Sketcher.Constraint("Equal", 21, 22))
sketch3.addConstraint(Sketcher.Constraint("Equal", 22, 23))
sketch3.addConstraint(Sketcher.Constraint("Equal", 23, 24))
sketch3.addConstraint(Sketcher.Constraint("Equal", 24, 25))
sketch3.addConstraint(Sketcher.Constraint("Equal", 25, 26))
sketch3.addConstraint(Sketcher.Constraint("Equal", 26, 27))
sketch3.addConstraint(Sketcher.Constraint("Equal", 27, 28))
sketch3.addConstraint(Sketcher.Constraint("Equal", 28, 29))
sketch3.addConstraint(Sketcher.Constraint("Equal", 29, 30))
sketch3.addConstraint(Sketcher.Constraint("Equal", 30, 31))
sketch3.addConstraint(Sketcher.Constraint("Equal", 31, 32))
sketch3.addConstraint(Sketcher.Constraint("Equal", 32, 33))
sketch3.addConstraint(Sketcher.Constraint("Equal", 33, 34))
sketch3.addConstraint(Sketcher.Constraint("Equal", 34, 35))
sketch3.addConstraint(Sketcher.Constraint("Equal", 35, 36))
sketch3.addConstraint(Sketcher.Constraint("Equal", 36, 37))
sketch3.addConstraint(Sketcher.Constraint("Equal", 37, 38))
sketch3.addConstraint(Sketcher.Constraint("Equal", 38, 39))
sketch3.addConstraint(Sketcher.Constraint("Equal", 39, 40))
sketch3.addConstraint(Sketcher.Constraint("Equal", 40, 41))
sketch3.addConstraint(Sketcher.Constraint("Equal", 41, 42))
sketch3.addConstraint(Sketcher.Constraint("Equal", 42, 43))
sketch3.addConstraint(Sketcher.Constraint("Equal", 43, 44))
sketch3.addConstraint(Sketcher.Constraint("Equal", 44, 45))
sketch3.addConstraint(Sketcher.Constraint("Equal", 45, 46))
sketch3.addConstraint(Sketcher.Constraint("Equal", 46, 47))
sketch3.addConstraint(Sketcher.Constraint("Equal", 47, 48))
sketch3.addConstraint(Sketcher.Constraint("Equal", 48, 49))
sketch3.addConstraint(Sketcher.Constraint("Equal", 49, 50))
sketch3.addConstraint(Sketcher.Constraint("Equal", 50, 51))
sketch3.addConstraint(Sketcher.Constraint("Equal", 51, 52))
sketch3.addConstraint(Sketcher.Constraint("Equal", 52, 53))
sketch3.addConstraint(Sketcher.Constraint("Equal", 53, 54))
sketch3.addConstraint(Sketcher.Constraint("Equal", 54, 55))
sketch3.addConstraint(Sketcher.Constraint("Equal", 55, 56))
sketch3.addConstraint(Sketcher.Constraint("Equal", 56, 57))
sketch3.addConstraint(Sketcher.Constraint("Equal", 57, 58))
sketch3.addConstraint(Sketcher.Constraint("Equal", 58, 59))
sketch3.addConstraint(Sketcher.Constraint("Equal", 60, 61))
sketch3.addConstraint(Sketcher.Constraint("Equal", 61, 62))
sketch3.addConstraint(Sketcher.Constraint("Equal", 62, 63))
sketch3.addConstraint(Sketcher.Constraint("Horizontal", 8, 3, 10, 3))
sketch3.addConstraint(Sketcher.Constraint("Horizontal", 9, 3, 11, 3))
sketch3.addConstraint(Sketcher.Constraint("Horizontal", 10, 3, 12, 3))
sketch3.addConstraint(Sketcher.Constraint("Horizontal", 11, 3, 13, 3))
sketch3.addConstraint(Sketcher.Constraint("Horizontal", 14, 3, 15, 3))
sketch3.addConstraint(Sketcher.Constraint("Horizontal", 16, 3, 17, 3))
sketch3.addConstraint(Sketcher.Constraint("Horizontal", 18, 3, 19, 3))
sketch3.addConstraint(Sketcher.Constraint("Horizontal", 20, 3, 22, 3))
sketch3.addConstraint(Sketcher.Constraint("Horizontal", 21, 3, 23, 3))
sketch3.addConstraint(Sketcher.Constraint("Horizontal", 22, 3, 24, 3))
sketch3.addConstraint(Sketcher.Constraint("Horizontal", 23, 3, 25, 3))
sketch3.addConstraint(Sketcher.Constraint("Horizontal", 24, 3, 26, 3))
sketch3.addConstraint(Sketcher.Constraint("Horizontal", 25, 3, 27, 3))
sketch3.addConstraint(Sketcher.Constraint("Horizontal", 26, 3, 28, 3))
sketch3.addConstraint(Sketcher.Constraint("Horizontal", 27, 3, 29, 3))
sketch3.addConstraint(Sketcher.Constraint("Horizontal", 28, 3, 30, 3))
sketch3.addConstraint(Sketcher.Constraint("Horizontal", 29, 3, 31, 3))
sketch3.addConstraint(Sketcher.Constraint("Horizontal", 30, 3, 32, 3))
sketch3.addConstraint(Sketcher.Constraint("Horizontal", 31, 3, 33, 3))
sketch3.addConstraint(Sketcher.Constraint("Horizontal", 32, 3, 34, 3))
sketch3.addConstraint(Sketcher.Constraint("Horizontal", 33, 3, 35, 3))
sketch3.addConstraint(Sketcher.Constraint("Horizontal", 34, 3, 36, 3))
sketch3.addConstraint(Sketcher.Constraint("Horizontal", 35, 3, 37, 3))
sketch3.addConstraint(Sketcher.Constraint("Horizontal", 36, 3, 38, 3))
sketch3.addConstraint(Sketcher.Constraint("Horizontal", 37, 3, 39, 3))
sketch3.addConstraint(Sketcher.Constraint("Horizontal", 38, 3, 40, 3))
sketch3.addConstraint(Sketcher.Constraint("Horizontal", 39, 3, 41, 3))
sketch3.addConstraint(Sketcher.Constraint("Horizontal", 40, 3, 42, 3))
sketch3.addConstraint(Sketcher.Constraint("Horizontal", 41, 3, 43, 3))
sketch3.addConstraint(Sketcher.Constraint("Horizontal", 42, 3, 44, 3))
sketch3.addConstraint(Sketcher.Constraint("Horizontal", 43, 3, 45, 3))
sketch3.addConstraint(Sketcher.Constraint("Horizontal", 44, 3, 46, 3))
sketch3.addConstraint(Sketcher.Constraint("Horizontal", 45, 3, 47, 3))
sketch3.addConstraint(Sketcher.Constraint("Horizontal", 46, 3, 48, 3))
sketch3.addConstraint(Sketcher.Constraint("Horizontal", 47, 3, 49, 3))
sketch3.addConstraint(Sketcher.Constraint("Horizontal", 48, 3, 50, 3))
sketch3.addConstraint(Sketcher.Constraint("Horizontal", 49, 3, 51, 3))
sketch3.addConstraint(Sketcher.Constraint("Horizontal", 50, 3, 52, 3))
sketch3.addConstraint(Sketcher.Constraint("Horizontal", 51, 3, 53, 3))
sketch3.addConstraint(Sketcher.Constraint("Horizontal", 52, 3, 54, 3))
sketch3.addConstraint(Sketcher.Constraint("Horizontal", 53, 3, 55, 3))
sketch3.addConstraint(Sketcher.Constraint("Horizontal", 54, 3, 56, 3))
sketch3.addConstraint(Sketcher.Constraint("Horizontal", 55, 3, 57, 3))
sketch3.addConstraint(Sketcher.Constraint("Horizontal", 56, 3, 58, 3))
sketch3.addConstraint(Sketcher.Constraint("Horizontal", 57, 3, 59, 3))
sketch3.addConstraint(Sketcher.Constraint("Vertical", 0, 3, 1, 3))
sketch3.addConstraint(Sketcher.Constraint("Vertical", 1, 3, 2, 3))
sketch3.addConstraint(Sketcher.Constraint("Vertical", 2, 3, 3, 3))
sketch3.addConstraint(Sketcher.Constraint("Vertical", 4, 3, 5, 3))
sketch3.addConstraint(Sketcher.Constraint("Vertical", 5, 3, 6, 3))
sketch3.addConstraint(Sketcher.Constraint("Vertical", 6, 3, 7, 3))
sketch3.addConstraint(Sketcher.Constraint("Vertical", 8, 3, 9, 3))
sketch3.addConstraint(Sketcher.Constraint("Vertical", 10, 3, 11, 3))
sketch3.addConstraint(Sketcher.Constraint("Vertical", 12, 3, 13, 3))
sketch3.addConstraint(Sketcher.Constraint("Vertical", 14, 3, 16, 3))
sketch3.addConstraint(Sketcher.Constraint("Vertical", 15, 3, 17, 3))
sketch3.addConstraint(Sketcher.Constraint("Vertical", 16, 3, 18, 3))
sketch3.addConstraint(Sketcher.Constraint("Vertical", 17, 3, 19, 3))
sketch3.addConstraint(Sketcher.Constraint("Vertical", 22, 3, 23, 3))
sketch3.addConstraint(Sketcher.Constraint("Vertical", 24, 3, 25, 3))
sketch3.addConstraint(Sketcher.Constraint("Vertical", 26, 3, 27, 3))
sketch3.addConstraint(Sketcher.Constraint("Vertical", 28, 3, 29, 3))
sketch3.addConstraint(Sketcher.Constraint("Vertical", 30, 3, 31, 3))
sketch3.addConstraint(Sketcher.Constraint("Vertical", 32, 3, 33, 3))
sketch3.addConstraint(Sketcher.Constraint("Vertical", 34, 3, 35, 3))
sketch3.addConstraint(Sketcher.Constraint("Vertical", 36, 3, 37, 3))
sketch3.addConstraint(Sketcher.Constraint("Vertical", 38, 3, 39, 3))
sketch3.addConstraint(Sketcher.Constraint("Vertical", 40, 3, 41, 3))
sketch3.addConstraint(Sketcher.Constraint("Vertical", 42, 3, 43, 3))
sketch3.addConstraint(Sketcher.Constraint("Vertical", 44, 3, 45, 3))
sketch3.addConstraint(Sketcher.Constraint("Vertical", 46, 3, 47, 3))
sketch3.addConstraint(Sketcher.Constraint("Vertical", 48, 3, 49, 3))
sketch3.addConstraint(Sketcher.Constraint("Vertical", 50, 3, 51, 3))
sketch3.addConstraint(Sketcher.Constraint("Vertical", 52, 3, 53, 3))
sketch3.addConstraint(Sketcher.Constraint("Vertical", 54, 3, 55, 3))
sketch3.addConstraint(Sketcher.Constraint("Vertical", 56, 3, 57, 3))
sketch3.addConstraint(Sketcher.Constraint("Vertical", 58, 3, 59, 3))
sketch3.addConstraint(Sketcher.Constraint("Vertical", 60, 3, 61, 3))
sketch3.addConstraint(Sketcher.Constraint("Vertical", 61, 3, 62, 3))
sketch3.addConstraint(Sketcher.Constraint("Vertical", 62, 3, 63, 3))
sketch3.addConstraint(Sketcher.Constraint("Diameter", 0, 1.02))
sketch3.addConstraint(Sketcher.Constraint("Diameter", 60, 0.95))
sketch3.addConstraint(Sketcher.Constraint("DistanceY", -1, 1, 20, 3, 59.0))
sketch3.addConstraint(Sketcher.Constraint("DistanceX", -1, 1, 26, 3, 21.5))
sketch3.addConstraint(Sketcher.Constraint("DistanceX", -1, 1, 36, 3, 34.2))
sketch3.addConstraint(Sketcher.Constraint("DistanceX", -1, 1, 46, 3, 46.9))
sketch3.addConstraint(Sketcher.Constraint("DistanceX", -1, 1, 56, 3, 59.6))
sketch3.addConstraint(Sketcher.Constraint("DistanceY", -1, 1, 60, 3, 75.2))
sketch3.addConstraint(Sketcher.Constraint("DistanceY", -1, 1, 61, 3, 77.7))
sketch3.addConstraint(Sketcher.Constraint("DistanceY", -1, 1, 62, 3, 79.7))
sketch3.addConstraint(Sketcher.Constraint("DistanceY", -1, 1, 63, 3, 82.2))
sketch3.addConstraint(Sketcher.Constraint("DistanceX", -1, 1, 0, 3, 91.83))
sketch3.addConstraint(Sketcher.Constraint("DistanceY", -1, 1, 0, 3, 51.79))
sketch3.addConstraint(Sketcher.Constraint("DistanceY", -1, 1, 1, 3, 54.33))
sketch3.addConstraint(Sketcher.Constraint("DistanceY", -1, 1, 2, 3, 56.87))
sketch3.addConstraint(Sketcher.Constraint("DistanceY", -1, 1, 3, 3, 59.41))
sketch3.addConstraint(Sketcher.Constraint("DistanceX", -1, 1, 4, 3, 91.85))
sketch3.addConstraint(Sketcher.Constraint("DistanceY", -1, 1, 4, 3, 32.44))
sketch3.addConstraint(Sketcher.Constraint("DistanceY", -1, 1, 5, 3, 34.98))
sketch3.addConstraint(Sketcher.Constraint("DistanceY", -1, 1, 6, 3, 37.52))
sketch3.addConstraint(Sketcher.Constraint("DistanceY", -1, 1, 7, 3, 40.06))
sketch3.addConstraint(Sketcher.Constraint("DistanceX", -1, 1, 8, 3, 35.18))
sketch3.addConstraint(Sketcher.Constraint("DistanceY", -1, 1, 8, 3, 84.71))
sketch3.addConstraint(Sketcher.Constraint("DistanceY", -1, 1, 9, 3, 87.25))
sketch3.addConstraint(Sketcher.Constraint("DistanceX", -1, 1, 10, 3, 37.72))
sketch3.addConstraint(Sketcher.Constraint("DistanceX", -1, 1, 12, 3, 40.26))
sketch3.addConstraint(Sketcher.Constraint("DistanceX", -1, 1, 14, 3, 39.71))
sketch3.addConstraint(Sketcher.Constraint("DistanceY", -1, 1, 14, 3, 75.02))
sketch3.addConstraint(Sketcher.Constraint("DistanceX", -1, 1, 15, 3, 42.25))
sketch3.addConstraint(Sketcher.Constraint("DistanceY", -1, 1, 16, 3, 72.48))
sketch3.addConstraint(Sketcher.Constraint("DistanceY", -1, 1, 18, 3, 69.94))
sketch3.addConstraint(Sketcher.Constraint("DistanceX", -1, 1, 20, 3, 13.89))
sketch3.addConstraint(Sketcher.Constraint("DistanceX", -1, 1, 21, 3, 13.88))
sketch3.addConstraint(Sketcher.Constraint("DistanceY", -1, 1, 21, 3, 61.54))
sketch3.addConstraint(Sketcher.Constraint("DistanceX", -1, 1, 22, 3, 16.42))
sketch3.addConstraint(Sketcher.Constraint("DistanceX", -1, 1, 24, 3, 18.96))
sketch3.addConstraint(Sketcher.Constraint("DistanceX", -1, 1, 28, 3, 24.04))
sketch3.addConstraint(Sketcher.Constraint("DistanceX", -1, 1, 30, 3, 26.58))
sketch3.addConstraint(Sketcher.Constraint("DistanceX", -1, 1, 32, 3, 29.12))
sketch3.addConstraint(Sketcher.Constraint("DistanceX", -1, 1, 34, 3, 31.66))
sketch3.addConstraint(Sketcher.Constraint("DistanceX", -1, 1, 38, 3, 36.74))
sketch3.addConstraint(Sketcher.Constraint("DistanceX", -1, 1, 40, 3, 39.28))
sketch3.addConstraint(Sketcher.Constraint("DistanceX", -1, 1, 42, 3, 41.82))
sketch3.addConstraint(Sketcher.Constraint("DistanceX", -1, 1, 44, 3, 44.36))
sketch3.addConstraint(Sketcher.Constraint("DistanceX", -1, 1, 48, 3, 49.44))
sketch3.addConstraint(Sketcher.Constraint("DistanceX", -1, 1, 50, 3, 51.98))
sketch3.addConstraint(Sketcher.Constraint("DistanceX", -1, 1, 52, 3, 54.52))
sketch3.addConstraint(Sketcher.Constraint("DistanceX", -1, 1, 54, 3, 57.06))
sketch3.addConstraint(Sketcher.Constraint("DistanceX", -1, 1, 58, 3, 62.14))
sketch3.addConstraint(Sketcher.Constraint("DistanceX", -1, 1, 60, 3, 47.99))
pocket2 = body.newObject("PartDesign::Pocket", "Pocket001")
pocket2.Profile = sketch3
pocket2.Type = "ThroughAll"
pocket2.Reversed = True

doc.recompute()
